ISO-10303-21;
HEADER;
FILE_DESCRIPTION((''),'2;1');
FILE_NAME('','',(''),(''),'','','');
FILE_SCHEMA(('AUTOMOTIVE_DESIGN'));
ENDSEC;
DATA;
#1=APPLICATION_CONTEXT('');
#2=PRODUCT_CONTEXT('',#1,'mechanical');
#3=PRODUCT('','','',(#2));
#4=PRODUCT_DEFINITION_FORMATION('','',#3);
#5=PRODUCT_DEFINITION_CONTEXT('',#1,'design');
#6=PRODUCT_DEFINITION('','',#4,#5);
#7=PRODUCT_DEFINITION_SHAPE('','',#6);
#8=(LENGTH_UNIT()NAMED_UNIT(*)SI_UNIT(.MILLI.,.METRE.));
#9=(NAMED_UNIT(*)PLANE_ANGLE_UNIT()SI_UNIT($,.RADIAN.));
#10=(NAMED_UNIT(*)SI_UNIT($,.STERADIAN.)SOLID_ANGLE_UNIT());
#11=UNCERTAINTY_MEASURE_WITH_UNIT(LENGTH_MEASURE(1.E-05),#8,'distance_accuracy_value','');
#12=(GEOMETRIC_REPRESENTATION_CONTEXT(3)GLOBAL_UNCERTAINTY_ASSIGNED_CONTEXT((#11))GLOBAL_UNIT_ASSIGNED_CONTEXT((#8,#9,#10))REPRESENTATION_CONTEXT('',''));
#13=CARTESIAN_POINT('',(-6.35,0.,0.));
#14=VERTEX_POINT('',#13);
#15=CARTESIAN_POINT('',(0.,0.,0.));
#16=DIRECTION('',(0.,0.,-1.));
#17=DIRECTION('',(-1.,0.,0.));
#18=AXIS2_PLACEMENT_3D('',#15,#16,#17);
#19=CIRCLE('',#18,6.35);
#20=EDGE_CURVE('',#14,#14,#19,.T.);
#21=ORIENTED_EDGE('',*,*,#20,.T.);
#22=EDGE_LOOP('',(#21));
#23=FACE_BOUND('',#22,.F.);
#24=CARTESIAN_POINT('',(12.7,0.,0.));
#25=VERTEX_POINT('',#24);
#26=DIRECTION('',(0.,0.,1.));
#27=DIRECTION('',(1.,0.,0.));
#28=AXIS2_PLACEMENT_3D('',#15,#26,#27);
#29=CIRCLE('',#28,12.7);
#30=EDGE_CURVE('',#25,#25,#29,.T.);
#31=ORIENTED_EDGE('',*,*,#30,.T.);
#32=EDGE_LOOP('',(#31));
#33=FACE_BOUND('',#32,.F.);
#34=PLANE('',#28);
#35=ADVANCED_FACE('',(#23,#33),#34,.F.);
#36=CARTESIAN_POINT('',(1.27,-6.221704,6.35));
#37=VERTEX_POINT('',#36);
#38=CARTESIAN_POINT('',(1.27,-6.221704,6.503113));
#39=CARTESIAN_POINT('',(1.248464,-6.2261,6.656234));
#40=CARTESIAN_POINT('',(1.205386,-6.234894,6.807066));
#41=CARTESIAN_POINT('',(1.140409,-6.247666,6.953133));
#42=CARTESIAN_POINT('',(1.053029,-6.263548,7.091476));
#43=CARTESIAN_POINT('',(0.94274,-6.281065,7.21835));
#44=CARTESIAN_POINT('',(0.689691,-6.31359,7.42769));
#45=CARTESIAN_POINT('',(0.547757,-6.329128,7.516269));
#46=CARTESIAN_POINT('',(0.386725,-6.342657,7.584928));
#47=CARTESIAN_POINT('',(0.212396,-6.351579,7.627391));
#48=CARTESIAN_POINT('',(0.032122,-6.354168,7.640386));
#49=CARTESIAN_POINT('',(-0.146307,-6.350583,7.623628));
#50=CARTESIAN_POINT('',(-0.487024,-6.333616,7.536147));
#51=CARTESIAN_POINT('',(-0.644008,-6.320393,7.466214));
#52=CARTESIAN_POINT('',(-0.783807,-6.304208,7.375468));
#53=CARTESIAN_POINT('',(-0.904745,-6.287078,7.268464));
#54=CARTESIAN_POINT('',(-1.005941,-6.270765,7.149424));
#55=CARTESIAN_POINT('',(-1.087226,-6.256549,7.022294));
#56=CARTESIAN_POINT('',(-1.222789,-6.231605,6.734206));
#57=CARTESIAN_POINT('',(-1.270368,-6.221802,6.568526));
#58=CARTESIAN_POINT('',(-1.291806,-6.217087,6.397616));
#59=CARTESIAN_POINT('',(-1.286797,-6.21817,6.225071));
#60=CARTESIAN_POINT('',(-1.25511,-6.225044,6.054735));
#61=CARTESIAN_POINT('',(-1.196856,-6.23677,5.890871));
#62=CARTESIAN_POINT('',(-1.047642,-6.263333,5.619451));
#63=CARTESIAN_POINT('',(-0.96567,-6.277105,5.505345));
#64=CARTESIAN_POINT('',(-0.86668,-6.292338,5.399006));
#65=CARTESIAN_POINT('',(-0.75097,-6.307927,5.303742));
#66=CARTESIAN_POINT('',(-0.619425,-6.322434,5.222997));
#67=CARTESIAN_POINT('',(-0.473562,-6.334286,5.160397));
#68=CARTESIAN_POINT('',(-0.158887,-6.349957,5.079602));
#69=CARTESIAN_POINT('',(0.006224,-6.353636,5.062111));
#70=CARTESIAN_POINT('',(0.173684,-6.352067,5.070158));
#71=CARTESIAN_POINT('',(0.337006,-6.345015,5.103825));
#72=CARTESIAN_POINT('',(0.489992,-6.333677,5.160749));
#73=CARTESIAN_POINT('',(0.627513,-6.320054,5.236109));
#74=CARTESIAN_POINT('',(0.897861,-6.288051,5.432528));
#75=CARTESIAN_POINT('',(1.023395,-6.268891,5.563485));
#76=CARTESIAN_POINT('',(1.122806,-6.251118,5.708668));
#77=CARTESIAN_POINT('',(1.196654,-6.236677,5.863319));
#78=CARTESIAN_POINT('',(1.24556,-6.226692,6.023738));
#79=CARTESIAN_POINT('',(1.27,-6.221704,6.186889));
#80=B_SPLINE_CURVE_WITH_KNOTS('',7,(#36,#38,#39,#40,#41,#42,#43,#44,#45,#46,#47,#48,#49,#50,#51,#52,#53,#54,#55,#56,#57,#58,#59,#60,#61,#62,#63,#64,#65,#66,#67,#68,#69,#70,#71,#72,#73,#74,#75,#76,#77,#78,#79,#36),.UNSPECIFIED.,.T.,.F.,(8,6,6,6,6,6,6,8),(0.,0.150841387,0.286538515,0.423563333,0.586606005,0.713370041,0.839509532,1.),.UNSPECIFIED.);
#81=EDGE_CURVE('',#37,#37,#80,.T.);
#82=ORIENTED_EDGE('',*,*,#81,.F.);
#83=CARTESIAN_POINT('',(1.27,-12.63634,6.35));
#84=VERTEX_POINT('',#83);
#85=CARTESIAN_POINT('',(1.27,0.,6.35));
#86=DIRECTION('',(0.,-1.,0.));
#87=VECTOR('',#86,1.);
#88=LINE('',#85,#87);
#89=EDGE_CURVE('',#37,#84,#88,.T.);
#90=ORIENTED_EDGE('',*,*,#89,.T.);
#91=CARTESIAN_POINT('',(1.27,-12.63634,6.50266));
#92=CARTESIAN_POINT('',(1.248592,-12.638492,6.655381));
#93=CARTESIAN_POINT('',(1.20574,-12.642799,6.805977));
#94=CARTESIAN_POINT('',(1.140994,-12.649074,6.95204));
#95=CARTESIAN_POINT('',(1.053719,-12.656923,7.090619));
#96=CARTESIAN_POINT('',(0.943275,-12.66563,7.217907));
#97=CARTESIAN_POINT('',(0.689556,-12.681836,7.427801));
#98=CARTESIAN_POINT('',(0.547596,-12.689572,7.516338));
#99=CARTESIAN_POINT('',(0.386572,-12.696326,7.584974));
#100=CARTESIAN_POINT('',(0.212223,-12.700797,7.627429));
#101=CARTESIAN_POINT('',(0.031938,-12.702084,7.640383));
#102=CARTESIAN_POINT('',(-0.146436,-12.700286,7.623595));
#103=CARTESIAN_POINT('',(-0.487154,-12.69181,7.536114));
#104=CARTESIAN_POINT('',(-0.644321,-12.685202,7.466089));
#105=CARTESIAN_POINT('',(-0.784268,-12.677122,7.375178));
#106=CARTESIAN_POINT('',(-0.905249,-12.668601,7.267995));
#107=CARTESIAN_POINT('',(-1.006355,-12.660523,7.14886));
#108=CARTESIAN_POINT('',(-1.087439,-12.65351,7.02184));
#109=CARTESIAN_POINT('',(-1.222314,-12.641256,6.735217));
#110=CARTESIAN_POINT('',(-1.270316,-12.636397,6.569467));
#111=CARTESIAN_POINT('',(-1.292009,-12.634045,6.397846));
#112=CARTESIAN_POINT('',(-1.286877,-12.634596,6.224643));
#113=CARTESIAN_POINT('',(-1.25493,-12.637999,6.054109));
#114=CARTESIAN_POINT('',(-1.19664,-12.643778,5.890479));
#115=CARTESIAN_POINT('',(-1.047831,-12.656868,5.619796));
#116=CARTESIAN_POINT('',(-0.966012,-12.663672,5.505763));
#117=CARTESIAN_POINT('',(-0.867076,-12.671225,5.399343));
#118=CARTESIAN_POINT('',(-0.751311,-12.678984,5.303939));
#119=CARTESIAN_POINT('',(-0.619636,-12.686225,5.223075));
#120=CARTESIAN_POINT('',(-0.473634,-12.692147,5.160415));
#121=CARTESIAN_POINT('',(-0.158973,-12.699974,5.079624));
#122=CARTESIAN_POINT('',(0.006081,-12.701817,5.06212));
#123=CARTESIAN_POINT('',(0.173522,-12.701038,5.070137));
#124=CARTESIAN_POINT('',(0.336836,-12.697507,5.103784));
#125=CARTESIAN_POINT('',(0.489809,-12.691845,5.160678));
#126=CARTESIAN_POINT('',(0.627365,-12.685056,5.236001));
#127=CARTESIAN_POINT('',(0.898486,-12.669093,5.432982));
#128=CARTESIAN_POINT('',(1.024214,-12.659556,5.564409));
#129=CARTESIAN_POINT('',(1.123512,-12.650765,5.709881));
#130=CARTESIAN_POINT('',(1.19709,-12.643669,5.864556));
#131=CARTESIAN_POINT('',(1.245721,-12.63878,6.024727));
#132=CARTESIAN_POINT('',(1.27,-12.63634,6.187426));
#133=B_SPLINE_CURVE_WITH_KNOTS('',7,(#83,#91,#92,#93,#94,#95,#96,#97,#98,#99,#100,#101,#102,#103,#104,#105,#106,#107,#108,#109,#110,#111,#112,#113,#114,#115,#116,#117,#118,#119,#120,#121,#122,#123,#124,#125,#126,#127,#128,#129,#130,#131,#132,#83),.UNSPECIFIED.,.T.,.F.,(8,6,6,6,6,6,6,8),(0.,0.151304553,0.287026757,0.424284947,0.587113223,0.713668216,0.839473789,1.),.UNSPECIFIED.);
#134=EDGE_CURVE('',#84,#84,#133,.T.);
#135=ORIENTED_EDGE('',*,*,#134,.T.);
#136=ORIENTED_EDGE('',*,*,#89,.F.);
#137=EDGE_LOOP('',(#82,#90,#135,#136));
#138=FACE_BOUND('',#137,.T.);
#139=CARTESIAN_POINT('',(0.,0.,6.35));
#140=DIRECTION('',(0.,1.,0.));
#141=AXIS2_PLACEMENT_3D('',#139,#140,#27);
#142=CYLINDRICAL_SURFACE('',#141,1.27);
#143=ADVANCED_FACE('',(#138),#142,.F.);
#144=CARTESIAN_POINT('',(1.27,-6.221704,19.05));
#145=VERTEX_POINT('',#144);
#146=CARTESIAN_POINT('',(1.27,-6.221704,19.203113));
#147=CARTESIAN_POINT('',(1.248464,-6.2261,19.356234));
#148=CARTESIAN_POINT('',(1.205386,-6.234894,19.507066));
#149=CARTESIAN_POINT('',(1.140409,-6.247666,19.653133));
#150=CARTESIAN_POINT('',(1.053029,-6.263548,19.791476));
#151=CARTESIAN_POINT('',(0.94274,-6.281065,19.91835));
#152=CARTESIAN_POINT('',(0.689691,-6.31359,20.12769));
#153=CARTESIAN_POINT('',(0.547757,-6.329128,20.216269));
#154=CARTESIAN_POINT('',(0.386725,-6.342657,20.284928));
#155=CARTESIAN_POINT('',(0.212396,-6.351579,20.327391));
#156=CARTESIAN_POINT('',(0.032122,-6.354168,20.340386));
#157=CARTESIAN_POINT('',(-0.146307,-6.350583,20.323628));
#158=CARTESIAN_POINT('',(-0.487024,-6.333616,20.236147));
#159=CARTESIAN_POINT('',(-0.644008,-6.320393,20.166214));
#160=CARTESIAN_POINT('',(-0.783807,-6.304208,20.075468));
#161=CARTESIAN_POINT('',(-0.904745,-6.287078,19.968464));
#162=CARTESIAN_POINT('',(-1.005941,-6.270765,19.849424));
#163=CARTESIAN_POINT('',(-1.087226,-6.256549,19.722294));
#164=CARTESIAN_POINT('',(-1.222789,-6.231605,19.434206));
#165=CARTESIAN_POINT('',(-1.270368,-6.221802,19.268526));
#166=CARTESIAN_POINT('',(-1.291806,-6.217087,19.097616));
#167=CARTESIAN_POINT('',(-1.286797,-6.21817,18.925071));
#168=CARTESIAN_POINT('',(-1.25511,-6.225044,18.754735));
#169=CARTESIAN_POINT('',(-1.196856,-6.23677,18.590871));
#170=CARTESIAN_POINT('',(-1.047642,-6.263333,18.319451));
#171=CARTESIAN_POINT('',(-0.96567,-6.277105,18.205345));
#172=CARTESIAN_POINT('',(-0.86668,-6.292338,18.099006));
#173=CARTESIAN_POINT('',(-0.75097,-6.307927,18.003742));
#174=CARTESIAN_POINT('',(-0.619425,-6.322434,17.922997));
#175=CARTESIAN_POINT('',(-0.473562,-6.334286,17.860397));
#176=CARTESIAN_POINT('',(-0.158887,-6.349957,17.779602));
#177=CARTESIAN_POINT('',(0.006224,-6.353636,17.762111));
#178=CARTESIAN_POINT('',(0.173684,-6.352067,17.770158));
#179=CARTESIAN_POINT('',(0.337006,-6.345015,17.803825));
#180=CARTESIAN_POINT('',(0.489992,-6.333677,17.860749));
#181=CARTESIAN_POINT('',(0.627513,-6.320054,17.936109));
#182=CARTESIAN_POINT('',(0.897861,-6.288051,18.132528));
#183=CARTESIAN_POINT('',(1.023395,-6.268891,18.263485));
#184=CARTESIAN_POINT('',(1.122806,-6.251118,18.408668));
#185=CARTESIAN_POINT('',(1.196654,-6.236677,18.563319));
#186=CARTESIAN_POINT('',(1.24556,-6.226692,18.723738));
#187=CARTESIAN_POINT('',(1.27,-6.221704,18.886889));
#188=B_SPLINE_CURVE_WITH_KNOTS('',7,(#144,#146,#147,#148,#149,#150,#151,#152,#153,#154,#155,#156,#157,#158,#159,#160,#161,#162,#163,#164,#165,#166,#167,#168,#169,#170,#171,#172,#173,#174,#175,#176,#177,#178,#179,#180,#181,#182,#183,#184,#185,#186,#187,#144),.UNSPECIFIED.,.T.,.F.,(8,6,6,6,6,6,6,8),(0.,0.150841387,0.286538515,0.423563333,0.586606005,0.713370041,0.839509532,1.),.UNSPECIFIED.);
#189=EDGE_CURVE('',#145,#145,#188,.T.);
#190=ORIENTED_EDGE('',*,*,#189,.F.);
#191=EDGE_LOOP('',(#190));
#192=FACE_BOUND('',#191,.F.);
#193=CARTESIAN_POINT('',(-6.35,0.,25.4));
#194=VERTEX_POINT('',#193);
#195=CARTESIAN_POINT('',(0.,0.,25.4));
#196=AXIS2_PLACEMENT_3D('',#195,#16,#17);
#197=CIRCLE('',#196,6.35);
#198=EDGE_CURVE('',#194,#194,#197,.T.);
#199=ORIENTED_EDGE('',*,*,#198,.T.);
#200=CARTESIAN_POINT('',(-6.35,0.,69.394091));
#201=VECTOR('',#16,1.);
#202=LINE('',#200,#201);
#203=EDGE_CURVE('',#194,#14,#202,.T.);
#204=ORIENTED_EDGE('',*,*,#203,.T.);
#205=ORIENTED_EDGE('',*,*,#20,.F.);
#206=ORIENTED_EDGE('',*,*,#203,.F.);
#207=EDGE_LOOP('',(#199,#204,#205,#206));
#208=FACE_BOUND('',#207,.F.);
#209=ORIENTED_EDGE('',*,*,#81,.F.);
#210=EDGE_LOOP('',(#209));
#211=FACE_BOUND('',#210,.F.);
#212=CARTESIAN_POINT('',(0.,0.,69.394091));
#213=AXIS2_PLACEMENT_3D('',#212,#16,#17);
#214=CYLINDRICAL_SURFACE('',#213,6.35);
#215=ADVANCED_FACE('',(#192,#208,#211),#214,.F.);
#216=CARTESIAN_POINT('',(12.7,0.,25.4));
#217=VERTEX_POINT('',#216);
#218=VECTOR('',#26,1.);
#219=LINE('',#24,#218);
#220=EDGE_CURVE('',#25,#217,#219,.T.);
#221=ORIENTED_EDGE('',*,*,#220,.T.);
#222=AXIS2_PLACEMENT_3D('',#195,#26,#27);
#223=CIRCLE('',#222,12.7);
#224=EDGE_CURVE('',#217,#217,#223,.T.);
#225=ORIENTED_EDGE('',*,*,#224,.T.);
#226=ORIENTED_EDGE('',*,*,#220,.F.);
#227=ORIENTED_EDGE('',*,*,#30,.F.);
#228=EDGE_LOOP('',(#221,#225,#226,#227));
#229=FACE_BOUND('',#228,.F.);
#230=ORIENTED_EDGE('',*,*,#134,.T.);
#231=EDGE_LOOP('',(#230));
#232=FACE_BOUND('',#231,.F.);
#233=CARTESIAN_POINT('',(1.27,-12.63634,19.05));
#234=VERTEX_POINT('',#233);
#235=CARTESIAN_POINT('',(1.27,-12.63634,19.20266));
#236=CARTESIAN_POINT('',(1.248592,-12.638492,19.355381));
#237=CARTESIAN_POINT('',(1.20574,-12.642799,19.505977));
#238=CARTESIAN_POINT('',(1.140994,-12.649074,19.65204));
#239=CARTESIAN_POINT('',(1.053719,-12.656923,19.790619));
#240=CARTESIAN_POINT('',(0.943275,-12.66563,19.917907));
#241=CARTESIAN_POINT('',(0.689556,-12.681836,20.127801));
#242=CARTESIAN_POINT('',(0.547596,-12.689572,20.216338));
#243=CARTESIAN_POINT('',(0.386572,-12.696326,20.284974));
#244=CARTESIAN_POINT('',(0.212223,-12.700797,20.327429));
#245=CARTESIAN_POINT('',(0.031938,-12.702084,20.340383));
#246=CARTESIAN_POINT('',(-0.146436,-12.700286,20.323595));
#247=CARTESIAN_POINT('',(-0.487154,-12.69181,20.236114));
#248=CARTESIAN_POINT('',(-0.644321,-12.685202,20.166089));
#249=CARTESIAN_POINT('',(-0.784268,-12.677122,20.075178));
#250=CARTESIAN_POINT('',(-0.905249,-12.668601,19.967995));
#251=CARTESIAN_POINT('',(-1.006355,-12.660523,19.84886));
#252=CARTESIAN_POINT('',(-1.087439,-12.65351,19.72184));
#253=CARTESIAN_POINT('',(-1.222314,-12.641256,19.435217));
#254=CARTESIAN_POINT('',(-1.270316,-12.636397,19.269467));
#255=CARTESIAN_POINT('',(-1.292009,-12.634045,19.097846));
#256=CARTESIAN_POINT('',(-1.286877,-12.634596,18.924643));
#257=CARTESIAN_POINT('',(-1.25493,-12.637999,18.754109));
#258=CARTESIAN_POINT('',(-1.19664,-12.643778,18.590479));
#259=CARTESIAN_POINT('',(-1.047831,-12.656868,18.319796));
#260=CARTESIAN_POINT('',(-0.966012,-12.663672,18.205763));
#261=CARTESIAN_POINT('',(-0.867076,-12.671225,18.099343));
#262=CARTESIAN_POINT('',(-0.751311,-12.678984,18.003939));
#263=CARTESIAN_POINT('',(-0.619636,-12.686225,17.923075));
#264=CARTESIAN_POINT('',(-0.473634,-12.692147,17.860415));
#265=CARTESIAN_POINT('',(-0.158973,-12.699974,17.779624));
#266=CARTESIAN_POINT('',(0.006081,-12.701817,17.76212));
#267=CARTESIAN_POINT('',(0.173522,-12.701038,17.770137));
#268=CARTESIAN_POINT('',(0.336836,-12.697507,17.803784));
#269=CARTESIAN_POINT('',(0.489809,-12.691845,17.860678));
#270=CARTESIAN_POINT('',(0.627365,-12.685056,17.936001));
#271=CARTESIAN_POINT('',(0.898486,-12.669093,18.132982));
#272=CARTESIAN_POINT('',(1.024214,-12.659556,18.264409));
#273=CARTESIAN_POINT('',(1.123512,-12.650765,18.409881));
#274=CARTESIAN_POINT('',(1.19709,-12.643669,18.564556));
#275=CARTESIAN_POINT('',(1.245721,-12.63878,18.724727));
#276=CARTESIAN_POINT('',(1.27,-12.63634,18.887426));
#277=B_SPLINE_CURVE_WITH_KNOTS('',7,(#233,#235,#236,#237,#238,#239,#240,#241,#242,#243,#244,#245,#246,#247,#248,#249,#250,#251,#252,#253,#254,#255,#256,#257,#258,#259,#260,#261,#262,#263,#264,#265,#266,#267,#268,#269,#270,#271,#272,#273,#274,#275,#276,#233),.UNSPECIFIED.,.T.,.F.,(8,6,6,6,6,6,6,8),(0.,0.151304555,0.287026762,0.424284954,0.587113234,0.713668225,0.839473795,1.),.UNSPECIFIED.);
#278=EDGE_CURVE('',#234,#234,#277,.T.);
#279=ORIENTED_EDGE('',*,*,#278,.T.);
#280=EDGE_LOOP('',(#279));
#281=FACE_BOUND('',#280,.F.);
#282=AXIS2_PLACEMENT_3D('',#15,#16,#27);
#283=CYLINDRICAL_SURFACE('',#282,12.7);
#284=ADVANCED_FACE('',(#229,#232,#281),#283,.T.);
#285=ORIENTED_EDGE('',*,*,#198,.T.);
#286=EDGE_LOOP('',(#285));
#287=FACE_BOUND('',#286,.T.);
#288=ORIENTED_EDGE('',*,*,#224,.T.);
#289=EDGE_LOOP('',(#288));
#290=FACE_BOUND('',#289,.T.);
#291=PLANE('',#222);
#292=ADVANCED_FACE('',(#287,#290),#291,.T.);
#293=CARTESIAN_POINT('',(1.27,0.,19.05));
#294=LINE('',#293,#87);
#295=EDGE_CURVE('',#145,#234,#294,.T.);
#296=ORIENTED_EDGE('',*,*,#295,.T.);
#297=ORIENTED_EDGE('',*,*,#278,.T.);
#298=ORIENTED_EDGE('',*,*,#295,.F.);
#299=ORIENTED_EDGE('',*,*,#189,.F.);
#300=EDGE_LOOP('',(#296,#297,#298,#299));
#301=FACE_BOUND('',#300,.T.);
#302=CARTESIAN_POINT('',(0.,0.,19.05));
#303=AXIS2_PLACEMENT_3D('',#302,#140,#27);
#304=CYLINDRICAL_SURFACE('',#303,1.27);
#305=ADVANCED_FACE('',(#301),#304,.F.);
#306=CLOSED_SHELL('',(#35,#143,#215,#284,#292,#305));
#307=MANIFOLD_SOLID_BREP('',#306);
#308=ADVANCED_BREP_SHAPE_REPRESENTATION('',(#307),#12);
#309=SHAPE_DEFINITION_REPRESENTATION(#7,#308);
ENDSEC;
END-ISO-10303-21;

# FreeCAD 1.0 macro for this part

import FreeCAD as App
import Part
import Sketcher
from FreeCAD import Vector
Q = App.Units.Quantity

doc = App.newDocument("Part")
body = doc.addObject("PartDesign::Body", "Body")

# Sketch on XY plane
sketch1 = body.newObject("Sketcher::SketchObject", "Sketch")
sketch1.AttachmentSupport = (doc.getObject("XY_Plane"), [""])
sketch1.MapMode = "FlatFace"
sketch1.addGeometry(Part.Circle(Vector(0, 0, 0), Vector(0, 0, 1), 12.7), False)
sketch1.addConstraint([
    Sketcher.Constraint("Coincident", 0, 3, -1, 1),
    Sketcher.Constraint("Diameter", 0, Q("1 in")),
])
pad1 = body.newObject("PartDesign::Pad", "Pad")
pad1.Profile = sketch1
pad1.Length = Q("1 in")

# Sketch on XY plane
sketch2 = body.newObject("Sketcher::SketchObject", "Sketch001")
sketch2.AttachmentSupport = (doc.getObject("XY_Plane"), [""])
sketch2.MapMode = "FlatFace"
sketch2.AttachmentOffset = App.Placement(Vector(0, 0, 1 * 25.4), App.Rotation())
sketch2.addGeometry(Part.Circle(Vector(0, 0, 0), Vector(0, 0, 1), 6.35), False)
sketch2.addConstraint([
    Sketcher.Constraint("Coincident", 0, 3, -1, 1),
    Sketcher.Constraint("Diameter", 0, Q("0.5 in")),
])
doc.recompute()
hole = body.newObject("PartDesign::Hole", "Hole")
hole.Profile = sketch2
hole.ThreadType = "None"
hole.Diameter = Q("0.5 in")
hole.DepthType = "ThroughAll"

# Sketch on XZ plane
sketch3 = body.newObject("Sketcher::SketchObject", "Sketch002")
sketch3.AttachmentSupport = (doc.getObject("XZ_Plane"), [""])
sketch3.MapMode = "FlatFace"
sketch3.addGeometry([
    Part.Circle(Vector(0, 6.35, 0), Vector(0, 0, 1), 1.27),
    Part.Circle(Vector(0, 19.05, 0), Vector(0, 0, 1), 1.27),
], False)
sketch3.addConstraint([
    Sketcher.Constraint("Equal", 0, 1),
    Sketcher.Constraint("PointOnObject", 0, 3, -2),
    Sketcher.Constraint("PointOnObject", 1, 3, -2),
    Sketcher.Constraint("Diameter", 0, Q("0.1 in")),
    Sketcher.Constraint("DistanceY", 0, 3, 1, 3, Q("0.5 in")),
    Sketcher.Constraint("DistanceY", -1, 1, 0, 3, Q("0.25 in")),
])
pocket1 = body.newObject("PartDesign::Pocket", "Pocket")
pocket1.Profile = sketch3
pocket1.Type = "ThroughAll"
pocket1.Reversed = True

doc.recompute()
